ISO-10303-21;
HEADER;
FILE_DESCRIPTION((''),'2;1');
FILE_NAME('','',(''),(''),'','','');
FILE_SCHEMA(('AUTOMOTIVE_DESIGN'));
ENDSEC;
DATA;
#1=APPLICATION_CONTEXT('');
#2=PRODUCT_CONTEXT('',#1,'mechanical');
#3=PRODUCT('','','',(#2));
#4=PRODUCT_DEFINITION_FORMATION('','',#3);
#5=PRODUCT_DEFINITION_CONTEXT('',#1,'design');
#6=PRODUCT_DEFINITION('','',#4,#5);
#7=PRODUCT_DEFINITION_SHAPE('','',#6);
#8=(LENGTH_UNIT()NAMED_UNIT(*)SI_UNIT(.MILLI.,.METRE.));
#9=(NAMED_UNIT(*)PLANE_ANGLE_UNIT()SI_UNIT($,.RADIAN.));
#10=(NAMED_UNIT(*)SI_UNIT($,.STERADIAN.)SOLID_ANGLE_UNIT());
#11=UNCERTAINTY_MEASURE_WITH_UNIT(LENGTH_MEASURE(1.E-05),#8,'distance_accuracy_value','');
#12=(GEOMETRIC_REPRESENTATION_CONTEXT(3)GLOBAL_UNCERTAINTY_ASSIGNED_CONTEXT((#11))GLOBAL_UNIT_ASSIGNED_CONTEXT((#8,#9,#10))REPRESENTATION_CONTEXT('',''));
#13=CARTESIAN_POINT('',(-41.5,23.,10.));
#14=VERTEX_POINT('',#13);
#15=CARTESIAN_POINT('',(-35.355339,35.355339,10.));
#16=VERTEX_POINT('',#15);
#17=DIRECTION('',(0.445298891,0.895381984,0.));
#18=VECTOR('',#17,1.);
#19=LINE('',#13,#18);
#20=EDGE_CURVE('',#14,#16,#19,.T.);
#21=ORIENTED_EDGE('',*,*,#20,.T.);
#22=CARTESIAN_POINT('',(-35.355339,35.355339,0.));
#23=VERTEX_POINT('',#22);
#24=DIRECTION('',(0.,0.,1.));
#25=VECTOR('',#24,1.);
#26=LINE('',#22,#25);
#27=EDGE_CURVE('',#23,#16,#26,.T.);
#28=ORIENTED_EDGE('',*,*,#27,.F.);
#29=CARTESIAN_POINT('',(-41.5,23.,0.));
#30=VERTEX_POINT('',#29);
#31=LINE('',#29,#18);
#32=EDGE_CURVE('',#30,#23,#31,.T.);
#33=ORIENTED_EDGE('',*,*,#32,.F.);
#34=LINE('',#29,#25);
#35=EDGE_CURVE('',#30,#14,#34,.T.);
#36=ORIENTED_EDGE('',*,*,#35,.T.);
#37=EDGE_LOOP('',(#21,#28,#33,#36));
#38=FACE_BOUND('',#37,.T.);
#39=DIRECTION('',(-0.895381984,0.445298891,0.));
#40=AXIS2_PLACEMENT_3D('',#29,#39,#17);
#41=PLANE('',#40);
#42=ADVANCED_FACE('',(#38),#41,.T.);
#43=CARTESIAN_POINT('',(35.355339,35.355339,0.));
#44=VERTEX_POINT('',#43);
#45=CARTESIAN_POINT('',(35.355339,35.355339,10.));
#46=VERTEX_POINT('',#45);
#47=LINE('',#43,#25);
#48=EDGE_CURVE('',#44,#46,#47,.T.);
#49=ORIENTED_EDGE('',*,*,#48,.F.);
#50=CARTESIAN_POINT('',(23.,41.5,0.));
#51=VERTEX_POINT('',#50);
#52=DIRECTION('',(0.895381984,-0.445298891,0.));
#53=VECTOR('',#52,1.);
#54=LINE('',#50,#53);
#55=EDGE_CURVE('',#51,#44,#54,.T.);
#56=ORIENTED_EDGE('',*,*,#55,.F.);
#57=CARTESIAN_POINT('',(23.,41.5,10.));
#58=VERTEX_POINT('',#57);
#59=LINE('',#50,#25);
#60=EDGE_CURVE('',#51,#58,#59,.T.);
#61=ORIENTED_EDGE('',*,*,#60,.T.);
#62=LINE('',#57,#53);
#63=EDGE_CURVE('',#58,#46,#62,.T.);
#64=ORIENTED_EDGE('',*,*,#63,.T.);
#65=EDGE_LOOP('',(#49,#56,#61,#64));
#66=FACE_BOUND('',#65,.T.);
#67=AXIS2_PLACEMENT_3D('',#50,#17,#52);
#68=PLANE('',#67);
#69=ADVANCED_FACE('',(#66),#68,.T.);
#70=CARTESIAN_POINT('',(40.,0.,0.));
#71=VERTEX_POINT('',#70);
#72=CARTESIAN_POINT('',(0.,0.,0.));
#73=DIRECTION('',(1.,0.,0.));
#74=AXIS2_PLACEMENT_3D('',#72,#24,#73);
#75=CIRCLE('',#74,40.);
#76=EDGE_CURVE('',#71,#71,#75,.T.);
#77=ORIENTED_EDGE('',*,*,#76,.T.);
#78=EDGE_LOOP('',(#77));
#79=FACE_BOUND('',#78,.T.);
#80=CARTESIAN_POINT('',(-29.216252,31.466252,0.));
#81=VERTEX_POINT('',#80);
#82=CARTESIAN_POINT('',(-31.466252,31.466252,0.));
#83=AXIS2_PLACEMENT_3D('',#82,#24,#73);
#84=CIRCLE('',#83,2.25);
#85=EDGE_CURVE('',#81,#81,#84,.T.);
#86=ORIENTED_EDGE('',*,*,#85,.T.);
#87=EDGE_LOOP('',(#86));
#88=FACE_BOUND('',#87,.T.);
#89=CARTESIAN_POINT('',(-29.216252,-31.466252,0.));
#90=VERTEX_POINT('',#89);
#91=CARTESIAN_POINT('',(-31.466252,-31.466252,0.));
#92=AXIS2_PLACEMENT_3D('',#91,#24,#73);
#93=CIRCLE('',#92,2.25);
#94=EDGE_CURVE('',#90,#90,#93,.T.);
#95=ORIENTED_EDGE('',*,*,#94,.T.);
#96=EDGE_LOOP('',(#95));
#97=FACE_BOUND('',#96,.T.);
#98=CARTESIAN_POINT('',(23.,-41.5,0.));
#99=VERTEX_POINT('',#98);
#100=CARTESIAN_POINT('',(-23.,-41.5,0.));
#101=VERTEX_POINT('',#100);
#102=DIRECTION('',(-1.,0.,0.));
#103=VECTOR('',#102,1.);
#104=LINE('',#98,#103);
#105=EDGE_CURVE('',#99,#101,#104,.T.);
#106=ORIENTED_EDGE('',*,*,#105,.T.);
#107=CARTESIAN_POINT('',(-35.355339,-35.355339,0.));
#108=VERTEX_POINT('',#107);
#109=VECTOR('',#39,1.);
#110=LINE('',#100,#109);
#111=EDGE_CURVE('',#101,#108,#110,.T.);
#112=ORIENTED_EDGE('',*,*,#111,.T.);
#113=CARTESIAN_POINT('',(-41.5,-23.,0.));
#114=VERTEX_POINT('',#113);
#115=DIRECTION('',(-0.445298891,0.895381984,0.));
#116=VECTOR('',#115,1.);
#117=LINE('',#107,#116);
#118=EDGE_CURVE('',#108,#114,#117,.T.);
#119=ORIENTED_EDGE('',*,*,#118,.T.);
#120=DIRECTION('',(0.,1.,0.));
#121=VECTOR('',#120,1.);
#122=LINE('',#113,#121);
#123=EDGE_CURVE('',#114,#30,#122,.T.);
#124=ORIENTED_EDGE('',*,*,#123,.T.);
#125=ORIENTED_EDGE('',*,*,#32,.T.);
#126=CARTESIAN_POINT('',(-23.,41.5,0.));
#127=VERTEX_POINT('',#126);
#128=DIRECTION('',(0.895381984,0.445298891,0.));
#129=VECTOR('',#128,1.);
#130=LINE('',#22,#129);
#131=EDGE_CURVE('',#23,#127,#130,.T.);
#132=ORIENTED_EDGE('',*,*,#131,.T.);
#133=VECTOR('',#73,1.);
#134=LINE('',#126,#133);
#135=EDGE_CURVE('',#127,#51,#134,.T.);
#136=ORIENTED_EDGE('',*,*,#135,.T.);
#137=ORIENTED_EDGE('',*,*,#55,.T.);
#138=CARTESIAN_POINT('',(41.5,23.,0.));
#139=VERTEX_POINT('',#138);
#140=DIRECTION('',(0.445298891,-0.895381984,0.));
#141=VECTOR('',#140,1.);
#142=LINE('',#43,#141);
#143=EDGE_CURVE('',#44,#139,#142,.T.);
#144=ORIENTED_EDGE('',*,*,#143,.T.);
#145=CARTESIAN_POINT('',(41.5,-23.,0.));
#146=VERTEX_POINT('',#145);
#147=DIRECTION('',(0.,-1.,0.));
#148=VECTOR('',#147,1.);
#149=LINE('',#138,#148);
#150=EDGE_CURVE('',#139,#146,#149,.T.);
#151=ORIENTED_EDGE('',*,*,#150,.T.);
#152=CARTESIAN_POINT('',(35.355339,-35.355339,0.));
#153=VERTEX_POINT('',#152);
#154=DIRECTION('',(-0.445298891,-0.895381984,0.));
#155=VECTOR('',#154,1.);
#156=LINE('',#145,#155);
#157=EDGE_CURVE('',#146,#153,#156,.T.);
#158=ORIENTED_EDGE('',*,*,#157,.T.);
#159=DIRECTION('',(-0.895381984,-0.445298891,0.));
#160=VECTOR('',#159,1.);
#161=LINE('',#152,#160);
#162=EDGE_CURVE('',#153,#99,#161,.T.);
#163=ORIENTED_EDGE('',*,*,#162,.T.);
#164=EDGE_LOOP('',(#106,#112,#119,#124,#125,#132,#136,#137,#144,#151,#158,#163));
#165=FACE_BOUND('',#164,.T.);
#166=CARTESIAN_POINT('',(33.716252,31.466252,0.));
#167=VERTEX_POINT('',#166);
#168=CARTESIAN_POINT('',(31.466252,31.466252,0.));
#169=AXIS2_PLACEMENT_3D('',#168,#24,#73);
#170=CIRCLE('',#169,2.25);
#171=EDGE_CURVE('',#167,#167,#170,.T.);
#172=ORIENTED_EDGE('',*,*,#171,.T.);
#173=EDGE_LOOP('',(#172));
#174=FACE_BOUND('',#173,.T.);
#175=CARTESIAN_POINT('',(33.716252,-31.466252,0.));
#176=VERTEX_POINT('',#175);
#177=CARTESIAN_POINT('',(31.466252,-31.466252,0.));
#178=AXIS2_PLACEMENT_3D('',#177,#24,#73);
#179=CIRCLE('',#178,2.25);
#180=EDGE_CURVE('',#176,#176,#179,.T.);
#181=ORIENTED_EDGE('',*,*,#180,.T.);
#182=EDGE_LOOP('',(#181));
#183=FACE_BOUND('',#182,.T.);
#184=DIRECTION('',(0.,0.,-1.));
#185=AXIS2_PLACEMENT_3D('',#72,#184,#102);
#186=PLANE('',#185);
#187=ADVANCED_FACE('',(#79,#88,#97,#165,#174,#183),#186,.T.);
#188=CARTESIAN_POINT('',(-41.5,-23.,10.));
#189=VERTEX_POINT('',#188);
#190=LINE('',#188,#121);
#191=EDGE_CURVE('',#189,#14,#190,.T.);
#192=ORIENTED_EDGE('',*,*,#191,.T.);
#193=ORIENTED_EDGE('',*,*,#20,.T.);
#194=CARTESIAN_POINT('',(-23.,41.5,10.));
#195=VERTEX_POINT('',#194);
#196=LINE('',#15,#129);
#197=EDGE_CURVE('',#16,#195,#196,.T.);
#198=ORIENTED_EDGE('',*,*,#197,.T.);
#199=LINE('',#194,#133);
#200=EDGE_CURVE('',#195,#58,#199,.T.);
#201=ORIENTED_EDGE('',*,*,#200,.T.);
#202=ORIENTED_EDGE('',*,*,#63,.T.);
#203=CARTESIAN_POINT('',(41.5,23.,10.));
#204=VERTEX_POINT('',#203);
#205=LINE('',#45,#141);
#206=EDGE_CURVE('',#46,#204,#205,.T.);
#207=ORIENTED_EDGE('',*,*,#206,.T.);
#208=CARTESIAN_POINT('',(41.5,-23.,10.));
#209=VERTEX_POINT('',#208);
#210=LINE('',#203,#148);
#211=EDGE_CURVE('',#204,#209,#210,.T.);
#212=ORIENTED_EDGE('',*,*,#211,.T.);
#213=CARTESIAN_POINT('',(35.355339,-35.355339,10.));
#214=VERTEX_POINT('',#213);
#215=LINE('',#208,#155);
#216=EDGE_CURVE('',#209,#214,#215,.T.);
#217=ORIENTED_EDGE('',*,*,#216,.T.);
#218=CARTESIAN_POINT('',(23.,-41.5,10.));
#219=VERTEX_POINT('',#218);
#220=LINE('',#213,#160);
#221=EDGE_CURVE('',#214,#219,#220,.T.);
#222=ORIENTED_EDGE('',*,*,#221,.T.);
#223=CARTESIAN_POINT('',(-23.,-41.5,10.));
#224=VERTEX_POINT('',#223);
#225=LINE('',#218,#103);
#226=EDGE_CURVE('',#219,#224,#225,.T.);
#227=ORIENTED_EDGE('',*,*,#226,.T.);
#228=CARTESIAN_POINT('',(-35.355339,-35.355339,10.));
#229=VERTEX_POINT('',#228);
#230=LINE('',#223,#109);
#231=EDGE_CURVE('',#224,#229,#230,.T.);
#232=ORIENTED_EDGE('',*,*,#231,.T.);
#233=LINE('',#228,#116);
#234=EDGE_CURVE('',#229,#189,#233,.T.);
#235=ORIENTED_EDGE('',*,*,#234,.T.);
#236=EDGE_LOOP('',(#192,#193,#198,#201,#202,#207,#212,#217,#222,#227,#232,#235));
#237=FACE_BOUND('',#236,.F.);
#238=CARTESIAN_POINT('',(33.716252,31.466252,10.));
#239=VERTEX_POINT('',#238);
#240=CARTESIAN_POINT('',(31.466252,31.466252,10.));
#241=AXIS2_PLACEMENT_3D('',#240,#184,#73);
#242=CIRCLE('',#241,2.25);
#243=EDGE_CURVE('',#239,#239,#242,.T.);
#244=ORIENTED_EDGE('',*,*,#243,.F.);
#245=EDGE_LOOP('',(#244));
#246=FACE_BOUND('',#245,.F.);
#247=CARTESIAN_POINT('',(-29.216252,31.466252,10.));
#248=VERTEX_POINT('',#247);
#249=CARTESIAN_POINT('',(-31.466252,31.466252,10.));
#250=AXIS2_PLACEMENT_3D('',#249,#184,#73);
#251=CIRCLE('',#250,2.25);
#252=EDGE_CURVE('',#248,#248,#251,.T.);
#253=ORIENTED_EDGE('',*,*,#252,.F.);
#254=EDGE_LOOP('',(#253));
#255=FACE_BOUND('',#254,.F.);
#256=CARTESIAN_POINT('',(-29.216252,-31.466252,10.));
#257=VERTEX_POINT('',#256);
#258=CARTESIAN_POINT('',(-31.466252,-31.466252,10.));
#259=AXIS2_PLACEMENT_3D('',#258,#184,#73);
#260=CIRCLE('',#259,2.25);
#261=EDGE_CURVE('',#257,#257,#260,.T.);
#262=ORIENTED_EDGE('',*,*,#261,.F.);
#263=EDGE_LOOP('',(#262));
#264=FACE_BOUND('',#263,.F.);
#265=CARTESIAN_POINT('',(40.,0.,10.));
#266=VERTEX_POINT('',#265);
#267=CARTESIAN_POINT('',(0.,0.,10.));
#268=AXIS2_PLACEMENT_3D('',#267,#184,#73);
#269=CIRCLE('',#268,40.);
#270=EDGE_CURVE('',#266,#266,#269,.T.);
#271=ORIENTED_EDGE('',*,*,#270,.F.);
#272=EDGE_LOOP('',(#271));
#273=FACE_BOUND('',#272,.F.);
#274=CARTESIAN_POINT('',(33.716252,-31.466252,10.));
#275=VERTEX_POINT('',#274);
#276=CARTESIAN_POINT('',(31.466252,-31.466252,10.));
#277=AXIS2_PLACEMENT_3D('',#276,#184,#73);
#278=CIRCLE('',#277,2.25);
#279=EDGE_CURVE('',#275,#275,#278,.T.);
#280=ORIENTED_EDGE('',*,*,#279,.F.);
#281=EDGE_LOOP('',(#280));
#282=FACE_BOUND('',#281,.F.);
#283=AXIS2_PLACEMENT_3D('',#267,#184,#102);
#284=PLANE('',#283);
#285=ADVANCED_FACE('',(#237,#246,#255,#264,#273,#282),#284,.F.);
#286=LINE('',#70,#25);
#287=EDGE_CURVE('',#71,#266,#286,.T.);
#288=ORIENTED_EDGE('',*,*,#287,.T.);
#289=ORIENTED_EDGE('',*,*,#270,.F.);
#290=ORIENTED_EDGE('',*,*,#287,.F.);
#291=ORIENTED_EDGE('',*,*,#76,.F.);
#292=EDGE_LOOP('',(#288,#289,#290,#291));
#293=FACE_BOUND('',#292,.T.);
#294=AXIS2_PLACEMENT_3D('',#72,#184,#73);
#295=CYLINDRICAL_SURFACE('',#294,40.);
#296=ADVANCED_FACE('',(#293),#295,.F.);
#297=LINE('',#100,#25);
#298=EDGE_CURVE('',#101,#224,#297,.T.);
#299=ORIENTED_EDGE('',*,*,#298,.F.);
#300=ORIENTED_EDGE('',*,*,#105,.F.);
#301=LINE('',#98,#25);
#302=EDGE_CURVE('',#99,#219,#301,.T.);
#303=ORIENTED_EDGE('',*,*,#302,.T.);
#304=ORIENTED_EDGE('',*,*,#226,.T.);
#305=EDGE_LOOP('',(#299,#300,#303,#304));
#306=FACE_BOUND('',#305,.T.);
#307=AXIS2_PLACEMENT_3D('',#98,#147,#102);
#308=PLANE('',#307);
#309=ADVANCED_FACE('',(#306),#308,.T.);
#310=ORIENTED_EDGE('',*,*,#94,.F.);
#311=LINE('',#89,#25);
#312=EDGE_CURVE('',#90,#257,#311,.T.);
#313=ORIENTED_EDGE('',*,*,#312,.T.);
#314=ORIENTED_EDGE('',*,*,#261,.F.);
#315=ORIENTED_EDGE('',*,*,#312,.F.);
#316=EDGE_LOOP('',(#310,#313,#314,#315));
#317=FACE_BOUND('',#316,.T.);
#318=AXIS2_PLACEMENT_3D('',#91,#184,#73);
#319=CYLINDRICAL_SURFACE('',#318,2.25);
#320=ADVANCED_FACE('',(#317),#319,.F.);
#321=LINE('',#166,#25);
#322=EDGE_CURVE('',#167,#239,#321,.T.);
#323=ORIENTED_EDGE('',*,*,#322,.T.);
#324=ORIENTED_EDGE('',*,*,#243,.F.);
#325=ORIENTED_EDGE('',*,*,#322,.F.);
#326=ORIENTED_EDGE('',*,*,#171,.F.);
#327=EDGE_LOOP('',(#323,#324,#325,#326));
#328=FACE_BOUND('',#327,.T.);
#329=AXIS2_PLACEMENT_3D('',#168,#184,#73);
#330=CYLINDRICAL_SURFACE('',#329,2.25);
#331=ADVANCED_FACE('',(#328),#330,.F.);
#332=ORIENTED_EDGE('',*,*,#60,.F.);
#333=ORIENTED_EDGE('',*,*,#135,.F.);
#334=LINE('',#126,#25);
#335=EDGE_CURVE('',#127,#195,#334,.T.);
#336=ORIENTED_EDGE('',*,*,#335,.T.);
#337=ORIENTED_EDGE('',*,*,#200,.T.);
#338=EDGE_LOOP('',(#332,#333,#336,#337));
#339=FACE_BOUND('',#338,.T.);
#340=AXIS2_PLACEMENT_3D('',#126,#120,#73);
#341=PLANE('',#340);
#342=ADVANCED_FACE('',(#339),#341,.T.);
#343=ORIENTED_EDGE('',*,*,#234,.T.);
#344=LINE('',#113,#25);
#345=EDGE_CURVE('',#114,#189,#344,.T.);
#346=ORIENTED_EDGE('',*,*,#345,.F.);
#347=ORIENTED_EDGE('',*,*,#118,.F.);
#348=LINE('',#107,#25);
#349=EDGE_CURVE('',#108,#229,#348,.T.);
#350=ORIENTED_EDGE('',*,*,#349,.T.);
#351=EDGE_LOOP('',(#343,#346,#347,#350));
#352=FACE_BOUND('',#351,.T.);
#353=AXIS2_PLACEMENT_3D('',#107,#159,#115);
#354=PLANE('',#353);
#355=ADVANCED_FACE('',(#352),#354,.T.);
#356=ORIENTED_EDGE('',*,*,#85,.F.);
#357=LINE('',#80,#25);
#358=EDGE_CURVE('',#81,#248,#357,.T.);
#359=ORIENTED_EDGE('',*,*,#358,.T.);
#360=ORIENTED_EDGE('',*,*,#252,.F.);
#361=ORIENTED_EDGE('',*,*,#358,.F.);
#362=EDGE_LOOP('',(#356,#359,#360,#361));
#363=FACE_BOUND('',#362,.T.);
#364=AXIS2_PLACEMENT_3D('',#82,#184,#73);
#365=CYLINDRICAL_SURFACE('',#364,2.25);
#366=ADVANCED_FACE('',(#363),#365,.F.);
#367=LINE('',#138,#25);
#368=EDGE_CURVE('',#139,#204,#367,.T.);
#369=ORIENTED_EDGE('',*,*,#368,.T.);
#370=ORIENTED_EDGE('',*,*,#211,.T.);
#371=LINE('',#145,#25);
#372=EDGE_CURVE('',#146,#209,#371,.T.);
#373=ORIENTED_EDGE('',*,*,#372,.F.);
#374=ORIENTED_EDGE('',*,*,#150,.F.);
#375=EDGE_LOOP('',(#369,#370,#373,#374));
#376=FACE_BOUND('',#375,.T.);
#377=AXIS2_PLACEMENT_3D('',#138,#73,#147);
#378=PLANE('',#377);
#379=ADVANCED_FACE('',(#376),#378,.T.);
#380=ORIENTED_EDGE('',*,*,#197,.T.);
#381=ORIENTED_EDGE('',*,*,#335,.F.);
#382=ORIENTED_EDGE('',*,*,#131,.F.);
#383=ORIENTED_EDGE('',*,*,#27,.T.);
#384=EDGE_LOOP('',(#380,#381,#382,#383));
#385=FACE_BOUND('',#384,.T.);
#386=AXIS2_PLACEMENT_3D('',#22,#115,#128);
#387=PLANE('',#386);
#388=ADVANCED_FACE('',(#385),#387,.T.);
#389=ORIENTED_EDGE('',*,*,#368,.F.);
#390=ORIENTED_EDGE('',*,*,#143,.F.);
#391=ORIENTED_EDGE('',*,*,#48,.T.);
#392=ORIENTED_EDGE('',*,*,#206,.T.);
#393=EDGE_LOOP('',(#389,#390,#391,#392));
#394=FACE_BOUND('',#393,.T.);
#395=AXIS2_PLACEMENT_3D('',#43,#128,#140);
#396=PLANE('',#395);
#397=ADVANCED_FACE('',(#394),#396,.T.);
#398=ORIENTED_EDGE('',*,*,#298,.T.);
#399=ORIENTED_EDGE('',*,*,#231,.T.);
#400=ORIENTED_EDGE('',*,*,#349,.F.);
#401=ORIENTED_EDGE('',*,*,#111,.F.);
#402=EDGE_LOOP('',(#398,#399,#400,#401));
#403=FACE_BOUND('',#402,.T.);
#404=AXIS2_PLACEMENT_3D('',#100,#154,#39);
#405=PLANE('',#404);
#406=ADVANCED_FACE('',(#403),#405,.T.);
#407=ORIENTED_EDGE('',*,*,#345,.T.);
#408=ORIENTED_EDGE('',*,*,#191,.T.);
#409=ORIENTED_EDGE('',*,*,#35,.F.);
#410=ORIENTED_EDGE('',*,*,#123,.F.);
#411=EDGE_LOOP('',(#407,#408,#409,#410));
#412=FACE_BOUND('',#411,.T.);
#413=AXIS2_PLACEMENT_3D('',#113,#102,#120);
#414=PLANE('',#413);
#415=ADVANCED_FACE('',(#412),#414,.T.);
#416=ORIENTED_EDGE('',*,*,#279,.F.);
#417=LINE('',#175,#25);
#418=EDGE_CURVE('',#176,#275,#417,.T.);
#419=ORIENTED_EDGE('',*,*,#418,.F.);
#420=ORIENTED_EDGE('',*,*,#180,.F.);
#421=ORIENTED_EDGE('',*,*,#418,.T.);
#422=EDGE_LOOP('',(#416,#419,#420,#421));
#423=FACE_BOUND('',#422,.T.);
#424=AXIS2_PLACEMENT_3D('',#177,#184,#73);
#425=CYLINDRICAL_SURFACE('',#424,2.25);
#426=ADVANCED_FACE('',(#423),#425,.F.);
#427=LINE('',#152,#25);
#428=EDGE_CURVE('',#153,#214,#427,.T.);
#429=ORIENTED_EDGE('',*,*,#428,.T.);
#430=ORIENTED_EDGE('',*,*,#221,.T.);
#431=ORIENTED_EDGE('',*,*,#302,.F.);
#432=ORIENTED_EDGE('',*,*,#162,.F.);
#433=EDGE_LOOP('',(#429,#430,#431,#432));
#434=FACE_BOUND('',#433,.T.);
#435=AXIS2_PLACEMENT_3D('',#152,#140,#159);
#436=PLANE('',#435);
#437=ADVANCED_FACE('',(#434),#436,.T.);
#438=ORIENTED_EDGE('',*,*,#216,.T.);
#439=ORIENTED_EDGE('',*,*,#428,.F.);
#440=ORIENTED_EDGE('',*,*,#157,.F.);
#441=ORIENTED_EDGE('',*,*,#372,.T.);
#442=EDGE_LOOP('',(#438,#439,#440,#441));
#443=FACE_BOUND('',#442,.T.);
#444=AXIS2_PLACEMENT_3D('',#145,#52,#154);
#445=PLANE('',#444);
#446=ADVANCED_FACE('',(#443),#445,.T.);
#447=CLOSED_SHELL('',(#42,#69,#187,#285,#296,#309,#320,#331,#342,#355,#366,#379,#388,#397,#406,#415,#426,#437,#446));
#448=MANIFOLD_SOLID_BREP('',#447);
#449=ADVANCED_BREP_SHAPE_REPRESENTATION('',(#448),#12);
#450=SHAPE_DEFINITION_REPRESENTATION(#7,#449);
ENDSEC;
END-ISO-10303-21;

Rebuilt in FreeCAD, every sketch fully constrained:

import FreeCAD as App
import Part
import Sketcher

V = App.Vector
Q = App.Units.Quantity

doc = App.newDocument("Part")
body = doc.addObject("PartDesign::Body", "Body")

sketch1 = body.newObject("Sketcher::SketchObject", "Sketch")
sketch1.AttachmentSupport = (doc.getObject("XY_Plane"), [""])
sketch1.MapMode = "FlatFace"
sketch1.addGeometry([
    Part.LineSegment(V(23, 42, 0), V(-23, 42, 0)),
    Part.LineSegment(V(-23, 42, 0), V(-35, 35, 0)),
    Part.LineSegment(V(-35, 35, 0), V(-42, 23, 0)),
    Part.LineSegment(V(-42, 23, 0), V(-42, -23, 0)),
    Part.LineSegment(V(-42, -23, 0), V(-35, -35, 0)),
    Part.LineSegment(V(-35, -35, 0), V(-23, -42, 0)),
    Part.LineSegment(V(-23, -42, 0), V(23, -42, 0)),
    Part.LineSegment(V(23, -42, 0), V(35, -35, 0)),
    Part.LineSegment(V(35, -35, 0), V(42, -23, 0)),
    Part.LineSegment(V(42, -23, 0), V(42, 23, 0)),
    Part.LineSegment(V(42, 23, 0), V(35, 35, 0)),
    Part.LineSegment(V(35, 35, 0), V(23, 42, 0)),
], False)
sketch1.addConstraint([
    Sketcher.Constraint("Coincident", 0, 2, 1, 1),
    Sketcher.Constraint("Coincident", 1, 2, 2, 1),
    Sketcher.Constraint("Coincident", 2, 2, 3, 1),
    Sketcher.Constraint("Coincident", 3, 2, 4, 1),
    Sketcher.Constraint("Coincident", 4, 2, 5, 1),
    Sketcher.Constraint("Coincident", 5, 2, 6, 1),
    Sketcher.Constraint("Coincident", 6, 2, 7, 1),
    Sketcher.Constraint("Coincident", 7, 2, 8, 1),
    Sketcher.Constraint("Coincident", 8, 2, 9, 1),
    Sketcher.Constraint("Coincident", 9, 2, 10, 1),
    Sketcher.Constraint("Coincident", 10, 2, 11, 1),
    Sketcher.Constraint("Coincident", 11, 2, 0, 1),
    Sketcher.Constraint("Horizontal", 0),
    Sketcher.Constraint("Vertical", 3),
    Sketcher.Constraint("Horizontal", 6),
    Sketcher.Constraint("Vertical", 9),
    Sketcher.Constraint("Symmetric", 0, 2, 6, 2, -1, 1),
    Sketcher.Constraint("Symmetric", 1, 2, 7, 2, -1, 1),
    Sketcher.Constraint("Symmetric", 2, 2, 8, 2, -1, 1),
    Sketcher.Constraint("Symmetric", 4, 2, 10, 2, -1, 1),
    Sketcher.Constraint("Symmetric", 4, 2, 7, 2, -2),
    Sketcher.Constraint("Perpendicular", 1, 4),
    Sketcher.Constraint("Perpendicular", 2, 5),
    Sketcher.Constraint("Perpendicular", 7, 10),
    Sketcher.Constraint("Perpendicular", 8, 11),
    Sketcher.Constraint("Horizontal", 3, 2, 8, 2),
    Sketcher.Constraint("Equal", 6, 3),
    Sketcher.Constraint("Equal", 1, 2),
    Sketcher.Constraint("DistanceX", 0, 2, 0, 1, Q("46 mm")),
    Sketcher.Constraint("DistanceY", 5, 2, 0, 2, Q("83 mm")),
    Sketcher.Constraint("Distance", 1, Q("13.798959 mm")),
])
pad1 = body.newObject("PartDesign::Pad", "Pad")
pad1.Profile = sketch1
pad1.Length = 10

sketch2 = body.newObject("Sketcher::SketchObject", "Sketch001")
sketch2.AttachmentSupport = (doc.getObject("XY_Plane"), [""])
sketch2.MapMode = "FlatFace"
sketch2.addGeometry([
    Part.Circle(V(0, 0, 0), V(0, 0, 1), 40),
    Part.Circle(V(31.5, 31.5, 0), V(0, 0, 1), 2.2),
    Part.Circle(V(-31.5, 31.5, 0), V(0, 0, 1), 2.2),
    Part.Circle(V(31.5, -31.5, 0), V(0, 0, 1), 2.2),
    Part.Circle(V(-31.5, -31.5, 0), V(0, 0, 1), 2.2),
], False)
sketch2.addConstraint([
    Sketcher.Constraint("Coincident", 0, 3, -1, 1),
    Sketcher.Constraint("Equal", 1, 2),
    Sketcher.Constraint("Equal", 2, 3),
    Sketcher.Constraint("Equal", 3, 4),
    Sketcher.Constraint("Symmetric", 2, 3, 3, 3, -1, 1),
    Sketcher.Constraint("Symmetric", 1, 3, 4, 3, -1, 1),
    Sketcher.Constraint("Symmetric", 1, 3, 2, 3, -2),
    Sketcher.Constraint("Diameter", 0, Q("80 mm")),
    Sketcher.Constraint("Diameter", 1, Q("4.5 mm")),
    Sketcher.Constraint("DistanceX", -1, 1, 1, 3, Q("31.466252 mm")),
    Sketcher.Constraint("DistanceY", -1, 1, 1, 3, Q("31.466252 mm")),
])
pocket1 = body.newObject("PartDesign::Pocket", "Pocket")
pocket1.Profile = sketch2
pocket1.Type = "ThroughAll"
pocket1.Reversed = True

doc.recompute()
